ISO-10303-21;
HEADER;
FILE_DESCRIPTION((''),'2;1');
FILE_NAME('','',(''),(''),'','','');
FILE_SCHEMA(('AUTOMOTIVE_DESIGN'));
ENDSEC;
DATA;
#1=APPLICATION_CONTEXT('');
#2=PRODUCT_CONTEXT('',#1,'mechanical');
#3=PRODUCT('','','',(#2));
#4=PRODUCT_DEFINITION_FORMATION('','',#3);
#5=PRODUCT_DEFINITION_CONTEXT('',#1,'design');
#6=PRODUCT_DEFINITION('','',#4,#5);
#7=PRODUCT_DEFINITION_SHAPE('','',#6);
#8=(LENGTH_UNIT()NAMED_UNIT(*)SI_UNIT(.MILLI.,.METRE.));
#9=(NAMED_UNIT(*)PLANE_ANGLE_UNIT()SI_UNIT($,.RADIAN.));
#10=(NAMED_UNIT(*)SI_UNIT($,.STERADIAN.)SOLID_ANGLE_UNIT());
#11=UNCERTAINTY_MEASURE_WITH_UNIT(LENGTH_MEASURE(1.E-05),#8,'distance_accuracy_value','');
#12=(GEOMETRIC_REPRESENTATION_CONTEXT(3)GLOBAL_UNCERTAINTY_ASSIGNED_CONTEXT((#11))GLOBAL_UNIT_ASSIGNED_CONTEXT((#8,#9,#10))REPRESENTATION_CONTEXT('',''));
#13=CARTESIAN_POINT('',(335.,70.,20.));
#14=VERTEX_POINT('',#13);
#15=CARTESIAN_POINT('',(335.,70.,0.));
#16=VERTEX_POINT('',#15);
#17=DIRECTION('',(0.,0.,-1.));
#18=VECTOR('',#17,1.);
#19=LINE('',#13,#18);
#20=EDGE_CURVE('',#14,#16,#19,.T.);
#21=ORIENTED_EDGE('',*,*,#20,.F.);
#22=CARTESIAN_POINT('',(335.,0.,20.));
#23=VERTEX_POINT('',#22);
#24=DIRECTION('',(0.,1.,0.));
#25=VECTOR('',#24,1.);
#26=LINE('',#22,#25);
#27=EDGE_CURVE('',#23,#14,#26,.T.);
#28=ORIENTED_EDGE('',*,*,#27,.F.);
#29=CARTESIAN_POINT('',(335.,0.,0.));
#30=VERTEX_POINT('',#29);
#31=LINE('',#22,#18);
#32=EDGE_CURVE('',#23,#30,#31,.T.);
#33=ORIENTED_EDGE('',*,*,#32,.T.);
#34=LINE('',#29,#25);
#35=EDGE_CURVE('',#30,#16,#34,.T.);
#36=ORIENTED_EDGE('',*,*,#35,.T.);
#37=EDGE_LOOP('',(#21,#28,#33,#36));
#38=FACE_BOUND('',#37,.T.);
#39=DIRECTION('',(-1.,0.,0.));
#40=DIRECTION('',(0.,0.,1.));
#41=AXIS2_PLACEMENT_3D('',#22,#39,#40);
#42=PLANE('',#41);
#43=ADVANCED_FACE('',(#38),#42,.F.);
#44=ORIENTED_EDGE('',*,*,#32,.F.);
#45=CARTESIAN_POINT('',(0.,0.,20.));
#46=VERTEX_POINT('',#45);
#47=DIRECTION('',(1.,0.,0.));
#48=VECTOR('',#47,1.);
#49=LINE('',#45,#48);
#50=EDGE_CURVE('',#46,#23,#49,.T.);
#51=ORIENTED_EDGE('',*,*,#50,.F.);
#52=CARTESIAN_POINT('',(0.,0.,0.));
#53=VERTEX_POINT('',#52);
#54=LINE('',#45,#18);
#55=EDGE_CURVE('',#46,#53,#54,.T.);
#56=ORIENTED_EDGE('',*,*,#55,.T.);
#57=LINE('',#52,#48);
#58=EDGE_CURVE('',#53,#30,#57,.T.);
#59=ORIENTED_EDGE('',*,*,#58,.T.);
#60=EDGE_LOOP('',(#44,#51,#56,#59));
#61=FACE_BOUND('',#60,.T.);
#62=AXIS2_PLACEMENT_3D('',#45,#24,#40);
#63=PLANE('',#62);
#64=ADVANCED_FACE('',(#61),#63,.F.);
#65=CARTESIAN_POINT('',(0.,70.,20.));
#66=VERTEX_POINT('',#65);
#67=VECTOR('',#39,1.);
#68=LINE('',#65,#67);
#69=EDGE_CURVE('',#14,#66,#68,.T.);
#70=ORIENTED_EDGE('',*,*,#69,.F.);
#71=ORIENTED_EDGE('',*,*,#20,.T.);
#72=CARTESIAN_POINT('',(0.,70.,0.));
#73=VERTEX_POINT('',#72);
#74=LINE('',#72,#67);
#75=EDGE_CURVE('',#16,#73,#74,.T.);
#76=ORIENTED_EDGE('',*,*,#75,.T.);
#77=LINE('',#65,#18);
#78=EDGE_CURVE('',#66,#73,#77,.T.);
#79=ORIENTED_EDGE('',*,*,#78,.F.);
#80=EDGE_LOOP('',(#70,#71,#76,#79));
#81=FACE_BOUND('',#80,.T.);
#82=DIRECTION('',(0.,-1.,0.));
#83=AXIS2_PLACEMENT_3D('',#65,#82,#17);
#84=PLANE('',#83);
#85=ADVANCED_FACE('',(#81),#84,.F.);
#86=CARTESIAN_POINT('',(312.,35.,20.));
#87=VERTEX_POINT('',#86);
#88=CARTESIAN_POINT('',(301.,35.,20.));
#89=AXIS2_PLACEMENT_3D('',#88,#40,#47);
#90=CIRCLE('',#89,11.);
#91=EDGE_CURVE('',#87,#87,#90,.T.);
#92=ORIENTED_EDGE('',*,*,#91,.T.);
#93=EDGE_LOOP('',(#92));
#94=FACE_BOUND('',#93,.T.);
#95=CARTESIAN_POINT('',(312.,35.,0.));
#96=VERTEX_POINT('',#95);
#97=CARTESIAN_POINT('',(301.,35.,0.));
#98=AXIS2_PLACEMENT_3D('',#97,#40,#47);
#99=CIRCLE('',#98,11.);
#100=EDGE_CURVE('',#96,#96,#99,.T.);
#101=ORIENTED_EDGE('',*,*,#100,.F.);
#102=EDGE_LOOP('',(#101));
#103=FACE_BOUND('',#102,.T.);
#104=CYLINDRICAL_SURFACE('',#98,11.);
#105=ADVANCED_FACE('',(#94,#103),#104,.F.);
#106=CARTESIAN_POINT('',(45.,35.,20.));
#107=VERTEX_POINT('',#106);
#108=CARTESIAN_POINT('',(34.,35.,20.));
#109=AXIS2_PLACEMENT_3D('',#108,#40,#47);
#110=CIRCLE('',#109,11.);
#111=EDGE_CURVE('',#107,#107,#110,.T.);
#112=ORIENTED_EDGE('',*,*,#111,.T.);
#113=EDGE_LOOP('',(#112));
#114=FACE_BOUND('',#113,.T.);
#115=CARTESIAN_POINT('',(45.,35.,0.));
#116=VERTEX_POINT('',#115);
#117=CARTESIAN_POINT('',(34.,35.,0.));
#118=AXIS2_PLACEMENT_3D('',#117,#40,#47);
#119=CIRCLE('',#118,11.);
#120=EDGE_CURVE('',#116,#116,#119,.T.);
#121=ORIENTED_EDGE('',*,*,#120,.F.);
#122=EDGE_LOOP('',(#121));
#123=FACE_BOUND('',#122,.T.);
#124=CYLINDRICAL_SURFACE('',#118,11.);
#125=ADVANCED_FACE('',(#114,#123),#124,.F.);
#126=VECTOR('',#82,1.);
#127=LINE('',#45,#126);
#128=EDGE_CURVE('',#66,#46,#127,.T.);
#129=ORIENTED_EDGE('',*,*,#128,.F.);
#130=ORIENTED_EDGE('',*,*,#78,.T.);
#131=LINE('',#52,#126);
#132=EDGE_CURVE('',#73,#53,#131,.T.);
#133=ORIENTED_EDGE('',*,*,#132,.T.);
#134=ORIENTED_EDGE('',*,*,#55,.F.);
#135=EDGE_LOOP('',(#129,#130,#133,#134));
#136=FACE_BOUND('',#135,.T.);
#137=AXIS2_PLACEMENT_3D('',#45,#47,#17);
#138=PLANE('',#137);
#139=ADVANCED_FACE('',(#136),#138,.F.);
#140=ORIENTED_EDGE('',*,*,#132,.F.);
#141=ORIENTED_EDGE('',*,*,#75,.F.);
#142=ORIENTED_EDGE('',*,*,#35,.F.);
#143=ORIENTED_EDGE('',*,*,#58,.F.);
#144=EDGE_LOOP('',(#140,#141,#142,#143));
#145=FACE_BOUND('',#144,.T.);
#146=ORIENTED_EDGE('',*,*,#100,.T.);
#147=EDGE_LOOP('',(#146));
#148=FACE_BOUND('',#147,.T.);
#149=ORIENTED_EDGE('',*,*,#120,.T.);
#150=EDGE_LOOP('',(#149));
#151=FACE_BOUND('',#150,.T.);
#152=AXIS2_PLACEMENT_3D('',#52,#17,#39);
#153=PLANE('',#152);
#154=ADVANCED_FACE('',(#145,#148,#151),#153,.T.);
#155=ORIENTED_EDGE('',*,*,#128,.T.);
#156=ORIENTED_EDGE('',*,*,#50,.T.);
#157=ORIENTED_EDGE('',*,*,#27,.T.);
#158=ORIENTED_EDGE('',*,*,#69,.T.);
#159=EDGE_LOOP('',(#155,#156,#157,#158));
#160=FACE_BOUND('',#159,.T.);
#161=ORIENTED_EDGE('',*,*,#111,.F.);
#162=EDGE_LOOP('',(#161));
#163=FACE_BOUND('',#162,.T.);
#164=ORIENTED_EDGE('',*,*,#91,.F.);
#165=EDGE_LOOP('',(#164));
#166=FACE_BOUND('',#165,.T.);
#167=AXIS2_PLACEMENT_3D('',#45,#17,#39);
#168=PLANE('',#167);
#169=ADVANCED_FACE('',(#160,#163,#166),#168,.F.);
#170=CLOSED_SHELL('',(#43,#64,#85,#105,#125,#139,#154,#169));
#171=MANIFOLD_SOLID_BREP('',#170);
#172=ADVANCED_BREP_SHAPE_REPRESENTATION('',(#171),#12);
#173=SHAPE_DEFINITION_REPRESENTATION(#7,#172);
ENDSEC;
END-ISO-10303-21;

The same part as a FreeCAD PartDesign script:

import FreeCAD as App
import Part
import Sketcher
from FreeCAD import Vector
Q = App.Units.Quantity

doc = App.newDocument("Part")
body = doc.addObject("PartDesign::Body", "Body")

sketch1 = body.newObject("Sketcher::SketchObject", "Sketch")
sketch1.AttachmentSupport = (doc.getObject("XY_Plane"), [""])
sketch1.MapMode = "FlatFace"
sketch1.addGeometry(Part.LineSegment(Vector(0, 70, 0), Vector(0, 0, 0)), False)
sketch1.addGeometry(Part.LineSegment(Vector(0, 0, 0), Vector(335, 0, 0)), False)
sketch1.addGeometry(Part.LineSegment(Vector(335, 0, 0), Vector(335, 70, 0)), False)
sketch1.addGeometry(Part.LineSegment(Vector(335, 70, 0), Vector(0, 70, 0)), False)
sketch1.addConstraint(Sketcher.Constraint("Coincident", 0, 2, 1, 1))
sketch1.addConstraint(Sketcher.Constraint("Coincident", 1, 2, 2, 1))
sketch1.addConstraint(Sketcher.Constraint("Coincident", 2, 2, 3, 1))
sketch1.addConstraint(Sketcher.Constraint("Coincident", 3, 2, 0, 1))
sketch1.addConstraint(Sketcher.Constraint("Vertical", 0))
sketch1.addConstraint(Sketcher.Constraint("Horizontal", 1))
sketch1.addConstraint(Sketcher.Constraint("Vertical", 2))
sketch1.addConstraint(Sketcher.Constraint("Horizontal", 3))
sketch1.addConstraint(Sketcher.Constraint("Coincident", 0, 2, -1, 1))
sketch1.addConstraint(Sketcher.Constraint("DistanceX", 1, 1, 1, 2, Q("335 mm")))
sketch1.addConstraint(Sketcher.Constraint("DistanceY", 0, 2, 0, 1, Q("70 mm")))
pad1 = body.newObject("PartDesign::Pad", "Pad")
pad1.Profile = sketch1
pad1.Length = 20

sketch2 = body.newObject("Sketcher::SketchObject", "Sketch001")
sketch2.AttachmentSupport = (doc.getObject("XY_Plane"), [""])
sketch2.MapMode = "FlatFace"
sketch2.AttachmentOffset = App.Placement(Vector(0, 0, 20), App.Rotation())
sketch2.addGeometry(Part.Circle(Vector(34, 35, 0), Vector(0, 0, 1), 11), False)
sketch2.addGeometry(Part.Circle(Vector(301, 35, 0), Vector(0, 0, 1), 11), False)
sketch2.addConstraint(Sketcher.Constraint("Equal", 0, 1))
sketch2.addConstraint(Sketcher.Constraint("Horizontal", 0, 3, 1, 3))
sketch2.addConstraint(Sketcher.Constraint("Diameter", 0, Q("22 mm")))
sketch2.addConstraint(Sketcher.Constraint("DistanceX", -1, 1, 0, 3, Q("34 mm")))
sketch2.addConstraint(Sketcher.Constraint("DistanceY", -1, 1, 0, 3, Q("35 mm")))
sketch2.addConstraint(Sketcher.Constraint("DistanceX", -1, 1, 1, 3, Q("301 mm")))
pocket1 = body.newObject("PartDesign::Pocket", "Pocket")
pocket1.Profile = sketch2
pocket1.Type = "ThroughAll"

doc.recompute()
